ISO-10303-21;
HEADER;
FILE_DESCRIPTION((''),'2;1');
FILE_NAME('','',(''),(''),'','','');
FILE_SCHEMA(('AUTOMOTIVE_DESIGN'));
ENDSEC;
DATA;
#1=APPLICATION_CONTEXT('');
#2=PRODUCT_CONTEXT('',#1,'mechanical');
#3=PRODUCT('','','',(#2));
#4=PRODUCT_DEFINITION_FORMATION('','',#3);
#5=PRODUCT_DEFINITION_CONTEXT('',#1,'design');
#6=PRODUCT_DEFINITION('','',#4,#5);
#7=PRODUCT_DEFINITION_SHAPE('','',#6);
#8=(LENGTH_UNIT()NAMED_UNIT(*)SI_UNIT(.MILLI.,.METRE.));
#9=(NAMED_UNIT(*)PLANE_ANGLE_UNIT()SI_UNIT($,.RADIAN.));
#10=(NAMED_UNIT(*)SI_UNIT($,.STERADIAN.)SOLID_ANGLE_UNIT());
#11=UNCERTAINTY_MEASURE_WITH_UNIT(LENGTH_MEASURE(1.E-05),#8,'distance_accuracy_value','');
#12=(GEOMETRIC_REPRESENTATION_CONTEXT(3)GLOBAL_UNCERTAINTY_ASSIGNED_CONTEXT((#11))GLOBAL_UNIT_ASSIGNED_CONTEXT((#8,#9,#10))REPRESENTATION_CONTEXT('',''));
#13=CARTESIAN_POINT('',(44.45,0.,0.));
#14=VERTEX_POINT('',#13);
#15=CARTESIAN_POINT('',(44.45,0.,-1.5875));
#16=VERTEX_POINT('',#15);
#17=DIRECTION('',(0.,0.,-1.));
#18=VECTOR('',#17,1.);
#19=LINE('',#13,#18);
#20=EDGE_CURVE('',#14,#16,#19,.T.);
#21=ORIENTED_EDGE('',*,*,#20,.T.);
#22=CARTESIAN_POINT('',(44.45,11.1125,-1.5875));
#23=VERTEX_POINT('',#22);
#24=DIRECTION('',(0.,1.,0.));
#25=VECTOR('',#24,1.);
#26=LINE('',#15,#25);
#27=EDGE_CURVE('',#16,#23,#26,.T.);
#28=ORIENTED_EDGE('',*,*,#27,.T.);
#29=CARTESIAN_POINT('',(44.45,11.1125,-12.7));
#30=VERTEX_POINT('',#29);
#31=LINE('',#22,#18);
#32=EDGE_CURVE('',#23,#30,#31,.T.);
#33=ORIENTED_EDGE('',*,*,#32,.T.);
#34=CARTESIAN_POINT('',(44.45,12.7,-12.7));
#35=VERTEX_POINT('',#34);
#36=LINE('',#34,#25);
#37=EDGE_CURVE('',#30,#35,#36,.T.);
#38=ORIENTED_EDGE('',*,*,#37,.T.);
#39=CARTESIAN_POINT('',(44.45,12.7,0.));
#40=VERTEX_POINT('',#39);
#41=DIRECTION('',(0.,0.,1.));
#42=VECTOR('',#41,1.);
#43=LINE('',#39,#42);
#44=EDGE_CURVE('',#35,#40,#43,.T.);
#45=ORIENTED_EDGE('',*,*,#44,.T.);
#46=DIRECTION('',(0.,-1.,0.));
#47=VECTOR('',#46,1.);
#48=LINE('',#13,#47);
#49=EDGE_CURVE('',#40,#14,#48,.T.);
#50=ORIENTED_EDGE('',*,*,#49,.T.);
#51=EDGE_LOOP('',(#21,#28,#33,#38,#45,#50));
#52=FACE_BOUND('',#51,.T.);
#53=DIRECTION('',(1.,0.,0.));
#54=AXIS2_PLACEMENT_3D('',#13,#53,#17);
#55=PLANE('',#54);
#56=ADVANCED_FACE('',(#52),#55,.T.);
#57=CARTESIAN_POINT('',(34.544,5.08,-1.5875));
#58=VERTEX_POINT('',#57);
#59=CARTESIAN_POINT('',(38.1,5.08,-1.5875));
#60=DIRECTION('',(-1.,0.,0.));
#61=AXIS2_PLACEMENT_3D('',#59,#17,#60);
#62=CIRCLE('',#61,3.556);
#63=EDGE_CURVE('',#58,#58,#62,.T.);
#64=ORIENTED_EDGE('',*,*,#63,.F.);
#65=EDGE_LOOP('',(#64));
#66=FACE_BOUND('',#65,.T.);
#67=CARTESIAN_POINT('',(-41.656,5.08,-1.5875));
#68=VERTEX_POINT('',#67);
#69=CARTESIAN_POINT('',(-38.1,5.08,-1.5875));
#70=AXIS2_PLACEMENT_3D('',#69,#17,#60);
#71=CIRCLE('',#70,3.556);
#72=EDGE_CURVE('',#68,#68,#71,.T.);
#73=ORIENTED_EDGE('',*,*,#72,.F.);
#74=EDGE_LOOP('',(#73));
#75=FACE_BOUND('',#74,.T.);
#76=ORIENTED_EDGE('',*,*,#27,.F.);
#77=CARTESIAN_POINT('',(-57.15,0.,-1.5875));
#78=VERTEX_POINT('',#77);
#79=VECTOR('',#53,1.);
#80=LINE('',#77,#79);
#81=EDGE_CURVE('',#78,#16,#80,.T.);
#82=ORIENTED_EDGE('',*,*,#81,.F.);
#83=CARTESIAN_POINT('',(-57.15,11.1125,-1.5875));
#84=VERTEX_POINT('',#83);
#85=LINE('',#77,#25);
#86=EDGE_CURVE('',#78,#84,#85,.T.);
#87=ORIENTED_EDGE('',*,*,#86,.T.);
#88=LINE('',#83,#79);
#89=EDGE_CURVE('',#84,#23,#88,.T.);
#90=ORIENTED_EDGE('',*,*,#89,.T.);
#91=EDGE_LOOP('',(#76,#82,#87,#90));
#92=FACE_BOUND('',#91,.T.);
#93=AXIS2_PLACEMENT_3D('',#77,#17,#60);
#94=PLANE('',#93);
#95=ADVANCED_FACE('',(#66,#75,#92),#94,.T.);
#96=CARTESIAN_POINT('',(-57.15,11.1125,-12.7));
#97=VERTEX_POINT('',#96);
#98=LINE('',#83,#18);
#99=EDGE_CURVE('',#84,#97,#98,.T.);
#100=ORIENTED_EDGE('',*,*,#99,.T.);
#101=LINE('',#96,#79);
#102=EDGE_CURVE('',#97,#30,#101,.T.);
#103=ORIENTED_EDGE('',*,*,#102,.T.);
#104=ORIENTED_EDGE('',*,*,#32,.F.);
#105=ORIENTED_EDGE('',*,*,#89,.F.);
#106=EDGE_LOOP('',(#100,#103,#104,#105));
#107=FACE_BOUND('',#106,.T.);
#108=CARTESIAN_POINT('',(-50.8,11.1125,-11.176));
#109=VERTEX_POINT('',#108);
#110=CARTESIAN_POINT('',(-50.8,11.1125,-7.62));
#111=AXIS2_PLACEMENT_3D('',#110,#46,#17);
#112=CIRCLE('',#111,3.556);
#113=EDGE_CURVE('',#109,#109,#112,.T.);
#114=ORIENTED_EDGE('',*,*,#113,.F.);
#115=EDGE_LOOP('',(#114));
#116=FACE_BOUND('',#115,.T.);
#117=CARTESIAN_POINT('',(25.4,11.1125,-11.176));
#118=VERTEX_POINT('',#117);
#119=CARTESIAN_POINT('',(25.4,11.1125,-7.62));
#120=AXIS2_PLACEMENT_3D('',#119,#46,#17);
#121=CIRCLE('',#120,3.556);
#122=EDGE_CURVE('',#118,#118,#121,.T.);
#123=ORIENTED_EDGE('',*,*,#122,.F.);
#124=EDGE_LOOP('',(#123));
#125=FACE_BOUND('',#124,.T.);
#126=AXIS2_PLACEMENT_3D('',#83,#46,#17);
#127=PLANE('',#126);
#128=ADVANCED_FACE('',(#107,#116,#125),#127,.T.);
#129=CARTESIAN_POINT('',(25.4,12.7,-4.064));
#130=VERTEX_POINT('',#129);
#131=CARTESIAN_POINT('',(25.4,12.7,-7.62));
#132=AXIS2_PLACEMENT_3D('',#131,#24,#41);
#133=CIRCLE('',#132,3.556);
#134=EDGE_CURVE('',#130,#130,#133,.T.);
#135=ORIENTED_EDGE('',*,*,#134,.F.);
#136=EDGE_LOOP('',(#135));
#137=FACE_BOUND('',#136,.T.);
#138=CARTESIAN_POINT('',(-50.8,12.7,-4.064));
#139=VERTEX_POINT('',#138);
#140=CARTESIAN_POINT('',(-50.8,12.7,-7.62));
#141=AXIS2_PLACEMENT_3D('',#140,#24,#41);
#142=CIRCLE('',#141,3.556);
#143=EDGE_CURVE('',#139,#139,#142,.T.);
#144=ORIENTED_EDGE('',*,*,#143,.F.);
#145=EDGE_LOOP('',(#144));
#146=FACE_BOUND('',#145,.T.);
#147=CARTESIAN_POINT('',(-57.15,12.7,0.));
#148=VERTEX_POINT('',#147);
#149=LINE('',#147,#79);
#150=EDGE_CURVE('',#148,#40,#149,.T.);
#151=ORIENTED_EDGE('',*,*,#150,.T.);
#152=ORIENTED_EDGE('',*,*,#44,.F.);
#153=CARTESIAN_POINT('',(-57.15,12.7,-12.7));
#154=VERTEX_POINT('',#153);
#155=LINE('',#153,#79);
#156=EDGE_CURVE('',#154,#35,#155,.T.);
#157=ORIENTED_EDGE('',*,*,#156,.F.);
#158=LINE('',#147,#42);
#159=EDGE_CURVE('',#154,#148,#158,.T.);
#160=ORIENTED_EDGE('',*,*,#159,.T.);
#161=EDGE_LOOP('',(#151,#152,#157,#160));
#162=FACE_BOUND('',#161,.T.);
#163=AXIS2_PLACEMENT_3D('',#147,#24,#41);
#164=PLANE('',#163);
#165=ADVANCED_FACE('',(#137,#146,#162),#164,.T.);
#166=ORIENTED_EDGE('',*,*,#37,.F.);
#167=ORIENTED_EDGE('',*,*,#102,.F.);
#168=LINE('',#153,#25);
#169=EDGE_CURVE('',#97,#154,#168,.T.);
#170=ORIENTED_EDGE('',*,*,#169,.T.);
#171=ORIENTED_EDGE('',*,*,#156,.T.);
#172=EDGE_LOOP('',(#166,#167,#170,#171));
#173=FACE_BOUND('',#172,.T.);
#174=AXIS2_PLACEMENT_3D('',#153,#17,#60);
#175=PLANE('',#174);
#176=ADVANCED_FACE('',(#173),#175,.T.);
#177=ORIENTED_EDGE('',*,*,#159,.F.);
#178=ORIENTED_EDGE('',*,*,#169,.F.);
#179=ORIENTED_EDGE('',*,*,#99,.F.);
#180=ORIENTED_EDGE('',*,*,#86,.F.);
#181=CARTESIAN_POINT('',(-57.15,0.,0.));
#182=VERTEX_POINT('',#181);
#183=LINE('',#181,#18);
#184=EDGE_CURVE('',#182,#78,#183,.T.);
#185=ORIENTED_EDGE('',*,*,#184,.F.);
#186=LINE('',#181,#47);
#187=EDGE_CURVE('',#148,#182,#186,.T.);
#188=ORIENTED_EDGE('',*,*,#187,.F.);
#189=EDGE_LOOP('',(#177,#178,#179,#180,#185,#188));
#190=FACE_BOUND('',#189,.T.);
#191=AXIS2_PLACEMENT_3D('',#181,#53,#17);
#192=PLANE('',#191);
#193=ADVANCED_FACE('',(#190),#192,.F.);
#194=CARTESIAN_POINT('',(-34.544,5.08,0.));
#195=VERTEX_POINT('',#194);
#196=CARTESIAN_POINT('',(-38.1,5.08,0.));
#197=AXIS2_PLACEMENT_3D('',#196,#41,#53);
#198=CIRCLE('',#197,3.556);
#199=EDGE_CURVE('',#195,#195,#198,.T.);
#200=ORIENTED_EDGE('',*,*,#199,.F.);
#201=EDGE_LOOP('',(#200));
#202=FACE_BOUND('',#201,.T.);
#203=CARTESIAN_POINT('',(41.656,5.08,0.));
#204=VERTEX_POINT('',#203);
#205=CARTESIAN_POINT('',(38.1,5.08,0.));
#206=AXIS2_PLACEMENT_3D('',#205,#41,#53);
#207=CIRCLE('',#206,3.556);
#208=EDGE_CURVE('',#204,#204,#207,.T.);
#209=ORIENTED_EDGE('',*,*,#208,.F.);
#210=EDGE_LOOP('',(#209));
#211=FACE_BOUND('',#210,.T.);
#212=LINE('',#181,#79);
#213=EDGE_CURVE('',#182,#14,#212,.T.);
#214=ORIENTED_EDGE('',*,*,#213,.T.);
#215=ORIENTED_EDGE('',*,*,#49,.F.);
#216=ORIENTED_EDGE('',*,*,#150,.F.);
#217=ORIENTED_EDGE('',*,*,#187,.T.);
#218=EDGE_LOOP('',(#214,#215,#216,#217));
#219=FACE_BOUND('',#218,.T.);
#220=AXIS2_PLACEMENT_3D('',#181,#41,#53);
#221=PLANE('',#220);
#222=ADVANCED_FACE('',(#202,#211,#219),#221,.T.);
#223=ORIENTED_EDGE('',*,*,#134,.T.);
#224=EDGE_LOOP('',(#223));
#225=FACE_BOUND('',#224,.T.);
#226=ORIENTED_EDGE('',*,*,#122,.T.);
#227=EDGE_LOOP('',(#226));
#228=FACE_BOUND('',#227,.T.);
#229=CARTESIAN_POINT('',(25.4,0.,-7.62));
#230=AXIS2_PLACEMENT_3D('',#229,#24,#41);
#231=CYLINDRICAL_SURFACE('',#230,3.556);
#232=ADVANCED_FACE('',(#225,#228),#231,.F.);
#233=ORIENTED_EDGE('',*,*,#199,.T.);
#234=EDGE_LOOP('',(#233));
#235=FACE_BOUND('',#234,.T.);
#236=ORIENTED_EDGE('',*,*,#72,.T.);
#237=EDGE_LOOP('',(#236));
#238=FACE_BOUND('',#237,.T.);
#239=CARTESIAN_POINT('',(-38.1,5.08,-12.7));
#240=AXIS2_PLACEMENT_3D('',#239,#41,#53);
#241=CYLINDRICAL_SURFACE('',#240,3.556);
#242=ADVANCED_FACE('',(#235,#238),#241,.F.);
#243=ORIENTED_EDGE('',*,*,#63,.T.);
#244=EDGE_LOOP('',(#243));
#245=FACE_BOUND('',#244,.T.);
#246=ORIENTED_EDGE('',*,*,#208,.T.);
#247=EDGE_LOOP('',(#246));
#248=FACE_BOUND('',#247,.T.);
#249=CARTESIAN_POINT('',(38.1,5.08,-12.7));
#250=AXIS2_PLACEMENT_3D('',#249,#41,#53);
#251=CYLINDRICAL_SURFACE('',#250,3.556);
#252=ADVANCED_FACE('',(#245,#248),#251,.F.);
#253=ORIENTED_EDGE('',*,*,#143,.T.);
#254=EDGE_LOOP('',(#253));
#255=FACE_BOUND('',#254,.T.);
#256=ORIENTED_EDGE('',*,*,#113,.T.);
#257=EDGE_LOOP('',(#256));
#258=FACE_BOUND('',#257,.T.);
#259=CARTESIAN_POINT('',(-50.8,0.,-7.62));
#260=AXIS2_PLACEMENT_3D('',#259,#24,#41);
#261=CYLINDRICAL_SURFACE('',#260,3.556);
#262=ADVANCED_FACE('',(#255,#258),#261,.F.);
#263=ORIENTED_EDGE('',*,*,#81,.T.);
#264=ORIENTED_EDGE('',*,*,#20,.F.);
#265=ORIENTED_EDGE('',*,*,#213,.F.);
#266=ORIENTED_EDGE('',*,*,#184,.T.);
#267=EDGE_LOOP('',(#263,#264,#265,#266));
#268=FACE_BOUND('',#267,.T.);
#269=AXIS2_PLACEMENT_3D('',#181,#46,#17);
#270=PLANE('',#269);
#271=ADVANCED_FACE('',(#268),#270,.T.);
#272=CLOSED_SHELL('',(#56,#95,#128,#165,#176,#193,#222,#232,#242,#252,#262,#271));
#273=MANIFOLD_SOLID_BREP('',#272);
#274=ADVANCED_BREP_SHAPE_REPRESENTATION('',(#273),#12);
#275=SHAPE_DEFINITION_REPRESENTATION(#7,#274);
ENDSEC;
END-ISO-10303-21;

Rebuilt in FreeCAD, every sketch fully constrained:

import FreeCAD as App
import Part
import Sketcher
from FreeCAD import Vector
Q = App.Units.Quantity


def add_polygon(sketch, points):
    """Adds a closed chain of lines whose ends are joined by coincident constraints."""
    first, n = sketch.GeometryCount, len(points)
    for a, b in zip(points, points[1:] + points[:1]):
        sketch.addGeometry(Part.LineSegment(App.Vector(*a, 0), App.Vector(*b, 0)), False)
    for i in range(n):
        sketch.addConstraint(Sketcher.Constraint("Coincident", first + i, 2, first + (i + 1) % n, 1))

doc = App.newDocument("Part")
body = doc.addObject("PartDesign::Body", "Body")

# Sketch on YZ plane
sketch1 = body.newObject("Sketcher::SketchObject", "Sketch")
sketch1.AttachmentSupport = (doc.getObject("YZ_Plane"), [""])
sketch1.MapMode = "FlatFace"
add_polygon(sketch1, [(12.7, 0), (0, 0), (0, -1.6), (11.1, -1.6), (11.1, -12.7), (12.7, -12.7)])  # lines 0-5
sketch1.addConstraint(Sketcher.Constraint("Horizontal", 0))
sketch1.addConstraint(Sketcher.Constraint("Vertical", 1))
sketch1.addConstraint(Sketcher.Constraint("Horizontal", 2))
sketch1.addConstraint(Sketcher.Constraint("Vertical", 3))
sketch1.addConstraint(Sketcher.Constraint("Horizontal", 4))
sketch1.addConstraint(Sketcher.Constraint("Vertical", 5))
sketch1.addConstraint(Sketcher.Constraint("Coincident", 0, 2, -1, 1))
sketch1.addConstraint(Sketcher.Constraint("Equal", 4, 1))
sketch1.addConstraint(Sketcher.Constraint("Equal", 2, 3))
sketch1.addConstraint(Sketcher.Constraint("DistanceX", 0, 2, 0, 1, Q("0.5 in")))
sketch1.addConstraint(Sketcher.Constraint("DistanceX", 2, 1, 2, 2, Q("0.4375 in")))
pad1 = body.newObject("PartDesign::Pad", "Pad")
pad1.Profile = sketch1
pad1.Type = "TwoLengths"
pad1.Length = Q("1.75 in")
pad1.Length2 = Q("2.25 in")

# Sketch on XY plane
sketch2 = body.newObject("Sketcher::SketchObject", "Sketch001")
sketch2.AttachmentSupport = (doc.getObject("XY_Plane"), [""])
sketch2.MapMode = "FlatFace"
sketch2.addGeometry(Part.Circle(Vector(-38.1, 5.1, 0), Vector(0, 0, 1), 3.6), False)
sketch2.addGeometry(Part.Circle(Vector(38.1, 5.1, 0), Vector(0, 0, 1), 3.6), False)
sketch2.addConstraint(Sketcher.Constraint("Equal", 0, 1))
sketch2.addConstraint(Sketcher.Constraint("Symmetric", 0, 3, 1, 3, -2))
sketch2.addConstraint(Sketcher.Constraint("Diameter", 0, Q("0.28 in")))
sketch2.addConstraint(Sketcher.Constraint("DistanceX", 0, 3, 1, 3, Q("3 in")))
sketch2.addConstraint(Sketcher.Constraint("DistanceY", -1, 1, 0, 3, Q("0.2 in")))
pocket1 = body.newObject("PartDesign::Pocket", "Pocket")
pocket1.Profile = sketch2
pocket1.Type = "ThroughAll"

# Sketch on XZ plane
sketch3 = body.newObject("Sketcher::SketchObject", "Sketch002")
sketch3.AttachmentSupport = (doc.getObject("XZ_Plane"), [""])
sketch3.MapMode = "FlatFace"
sketch3.AttachmentOffset = App.Placement(Vector(0, 0, -0.5 * 25.4), App.Rotation())
sketch3.addGeometry(Part.Circle(Vector(-50.8, -7.6, 0), Vector(0, 0, 1), 3.6), False)
sketch3.addGeometry(Part.Circle(Vector(25.4, -7.6, 0), Vector(0, 0, 1), 3.6), False)
sketch3.addConstraint(Sketcher.Constraint("Equal", 0, 1))
sketch3.addConstraint(Sketcher.Constraint("Horizontal", 0, 3, 1, 3))
sketch3.addConstraint(Sketcher.Constraint("Diameter", 0, Q("0.28 in")))
sketch3.addConstraint(Sketcher.Constraint("DistanceX", 0, 3, -1, 1, Q("2 in")))
sketch3.addConstraint(Sketcher.Constraint("DistanceX", -1, 1, 1, 3, Q("1 in")))
sketch3.addConstraint(Sketcher.Constraint("DistanceY", 0, 3, -1, 1, Q("0.3 in")))
pocket2 = body.newObject("PartDesign::Pocket", "Pocket001")
pocket2.Profile = sketch3
pocket2.Type = "ThroughAll"
pocket2.Reversed = True

doc.recompute()
